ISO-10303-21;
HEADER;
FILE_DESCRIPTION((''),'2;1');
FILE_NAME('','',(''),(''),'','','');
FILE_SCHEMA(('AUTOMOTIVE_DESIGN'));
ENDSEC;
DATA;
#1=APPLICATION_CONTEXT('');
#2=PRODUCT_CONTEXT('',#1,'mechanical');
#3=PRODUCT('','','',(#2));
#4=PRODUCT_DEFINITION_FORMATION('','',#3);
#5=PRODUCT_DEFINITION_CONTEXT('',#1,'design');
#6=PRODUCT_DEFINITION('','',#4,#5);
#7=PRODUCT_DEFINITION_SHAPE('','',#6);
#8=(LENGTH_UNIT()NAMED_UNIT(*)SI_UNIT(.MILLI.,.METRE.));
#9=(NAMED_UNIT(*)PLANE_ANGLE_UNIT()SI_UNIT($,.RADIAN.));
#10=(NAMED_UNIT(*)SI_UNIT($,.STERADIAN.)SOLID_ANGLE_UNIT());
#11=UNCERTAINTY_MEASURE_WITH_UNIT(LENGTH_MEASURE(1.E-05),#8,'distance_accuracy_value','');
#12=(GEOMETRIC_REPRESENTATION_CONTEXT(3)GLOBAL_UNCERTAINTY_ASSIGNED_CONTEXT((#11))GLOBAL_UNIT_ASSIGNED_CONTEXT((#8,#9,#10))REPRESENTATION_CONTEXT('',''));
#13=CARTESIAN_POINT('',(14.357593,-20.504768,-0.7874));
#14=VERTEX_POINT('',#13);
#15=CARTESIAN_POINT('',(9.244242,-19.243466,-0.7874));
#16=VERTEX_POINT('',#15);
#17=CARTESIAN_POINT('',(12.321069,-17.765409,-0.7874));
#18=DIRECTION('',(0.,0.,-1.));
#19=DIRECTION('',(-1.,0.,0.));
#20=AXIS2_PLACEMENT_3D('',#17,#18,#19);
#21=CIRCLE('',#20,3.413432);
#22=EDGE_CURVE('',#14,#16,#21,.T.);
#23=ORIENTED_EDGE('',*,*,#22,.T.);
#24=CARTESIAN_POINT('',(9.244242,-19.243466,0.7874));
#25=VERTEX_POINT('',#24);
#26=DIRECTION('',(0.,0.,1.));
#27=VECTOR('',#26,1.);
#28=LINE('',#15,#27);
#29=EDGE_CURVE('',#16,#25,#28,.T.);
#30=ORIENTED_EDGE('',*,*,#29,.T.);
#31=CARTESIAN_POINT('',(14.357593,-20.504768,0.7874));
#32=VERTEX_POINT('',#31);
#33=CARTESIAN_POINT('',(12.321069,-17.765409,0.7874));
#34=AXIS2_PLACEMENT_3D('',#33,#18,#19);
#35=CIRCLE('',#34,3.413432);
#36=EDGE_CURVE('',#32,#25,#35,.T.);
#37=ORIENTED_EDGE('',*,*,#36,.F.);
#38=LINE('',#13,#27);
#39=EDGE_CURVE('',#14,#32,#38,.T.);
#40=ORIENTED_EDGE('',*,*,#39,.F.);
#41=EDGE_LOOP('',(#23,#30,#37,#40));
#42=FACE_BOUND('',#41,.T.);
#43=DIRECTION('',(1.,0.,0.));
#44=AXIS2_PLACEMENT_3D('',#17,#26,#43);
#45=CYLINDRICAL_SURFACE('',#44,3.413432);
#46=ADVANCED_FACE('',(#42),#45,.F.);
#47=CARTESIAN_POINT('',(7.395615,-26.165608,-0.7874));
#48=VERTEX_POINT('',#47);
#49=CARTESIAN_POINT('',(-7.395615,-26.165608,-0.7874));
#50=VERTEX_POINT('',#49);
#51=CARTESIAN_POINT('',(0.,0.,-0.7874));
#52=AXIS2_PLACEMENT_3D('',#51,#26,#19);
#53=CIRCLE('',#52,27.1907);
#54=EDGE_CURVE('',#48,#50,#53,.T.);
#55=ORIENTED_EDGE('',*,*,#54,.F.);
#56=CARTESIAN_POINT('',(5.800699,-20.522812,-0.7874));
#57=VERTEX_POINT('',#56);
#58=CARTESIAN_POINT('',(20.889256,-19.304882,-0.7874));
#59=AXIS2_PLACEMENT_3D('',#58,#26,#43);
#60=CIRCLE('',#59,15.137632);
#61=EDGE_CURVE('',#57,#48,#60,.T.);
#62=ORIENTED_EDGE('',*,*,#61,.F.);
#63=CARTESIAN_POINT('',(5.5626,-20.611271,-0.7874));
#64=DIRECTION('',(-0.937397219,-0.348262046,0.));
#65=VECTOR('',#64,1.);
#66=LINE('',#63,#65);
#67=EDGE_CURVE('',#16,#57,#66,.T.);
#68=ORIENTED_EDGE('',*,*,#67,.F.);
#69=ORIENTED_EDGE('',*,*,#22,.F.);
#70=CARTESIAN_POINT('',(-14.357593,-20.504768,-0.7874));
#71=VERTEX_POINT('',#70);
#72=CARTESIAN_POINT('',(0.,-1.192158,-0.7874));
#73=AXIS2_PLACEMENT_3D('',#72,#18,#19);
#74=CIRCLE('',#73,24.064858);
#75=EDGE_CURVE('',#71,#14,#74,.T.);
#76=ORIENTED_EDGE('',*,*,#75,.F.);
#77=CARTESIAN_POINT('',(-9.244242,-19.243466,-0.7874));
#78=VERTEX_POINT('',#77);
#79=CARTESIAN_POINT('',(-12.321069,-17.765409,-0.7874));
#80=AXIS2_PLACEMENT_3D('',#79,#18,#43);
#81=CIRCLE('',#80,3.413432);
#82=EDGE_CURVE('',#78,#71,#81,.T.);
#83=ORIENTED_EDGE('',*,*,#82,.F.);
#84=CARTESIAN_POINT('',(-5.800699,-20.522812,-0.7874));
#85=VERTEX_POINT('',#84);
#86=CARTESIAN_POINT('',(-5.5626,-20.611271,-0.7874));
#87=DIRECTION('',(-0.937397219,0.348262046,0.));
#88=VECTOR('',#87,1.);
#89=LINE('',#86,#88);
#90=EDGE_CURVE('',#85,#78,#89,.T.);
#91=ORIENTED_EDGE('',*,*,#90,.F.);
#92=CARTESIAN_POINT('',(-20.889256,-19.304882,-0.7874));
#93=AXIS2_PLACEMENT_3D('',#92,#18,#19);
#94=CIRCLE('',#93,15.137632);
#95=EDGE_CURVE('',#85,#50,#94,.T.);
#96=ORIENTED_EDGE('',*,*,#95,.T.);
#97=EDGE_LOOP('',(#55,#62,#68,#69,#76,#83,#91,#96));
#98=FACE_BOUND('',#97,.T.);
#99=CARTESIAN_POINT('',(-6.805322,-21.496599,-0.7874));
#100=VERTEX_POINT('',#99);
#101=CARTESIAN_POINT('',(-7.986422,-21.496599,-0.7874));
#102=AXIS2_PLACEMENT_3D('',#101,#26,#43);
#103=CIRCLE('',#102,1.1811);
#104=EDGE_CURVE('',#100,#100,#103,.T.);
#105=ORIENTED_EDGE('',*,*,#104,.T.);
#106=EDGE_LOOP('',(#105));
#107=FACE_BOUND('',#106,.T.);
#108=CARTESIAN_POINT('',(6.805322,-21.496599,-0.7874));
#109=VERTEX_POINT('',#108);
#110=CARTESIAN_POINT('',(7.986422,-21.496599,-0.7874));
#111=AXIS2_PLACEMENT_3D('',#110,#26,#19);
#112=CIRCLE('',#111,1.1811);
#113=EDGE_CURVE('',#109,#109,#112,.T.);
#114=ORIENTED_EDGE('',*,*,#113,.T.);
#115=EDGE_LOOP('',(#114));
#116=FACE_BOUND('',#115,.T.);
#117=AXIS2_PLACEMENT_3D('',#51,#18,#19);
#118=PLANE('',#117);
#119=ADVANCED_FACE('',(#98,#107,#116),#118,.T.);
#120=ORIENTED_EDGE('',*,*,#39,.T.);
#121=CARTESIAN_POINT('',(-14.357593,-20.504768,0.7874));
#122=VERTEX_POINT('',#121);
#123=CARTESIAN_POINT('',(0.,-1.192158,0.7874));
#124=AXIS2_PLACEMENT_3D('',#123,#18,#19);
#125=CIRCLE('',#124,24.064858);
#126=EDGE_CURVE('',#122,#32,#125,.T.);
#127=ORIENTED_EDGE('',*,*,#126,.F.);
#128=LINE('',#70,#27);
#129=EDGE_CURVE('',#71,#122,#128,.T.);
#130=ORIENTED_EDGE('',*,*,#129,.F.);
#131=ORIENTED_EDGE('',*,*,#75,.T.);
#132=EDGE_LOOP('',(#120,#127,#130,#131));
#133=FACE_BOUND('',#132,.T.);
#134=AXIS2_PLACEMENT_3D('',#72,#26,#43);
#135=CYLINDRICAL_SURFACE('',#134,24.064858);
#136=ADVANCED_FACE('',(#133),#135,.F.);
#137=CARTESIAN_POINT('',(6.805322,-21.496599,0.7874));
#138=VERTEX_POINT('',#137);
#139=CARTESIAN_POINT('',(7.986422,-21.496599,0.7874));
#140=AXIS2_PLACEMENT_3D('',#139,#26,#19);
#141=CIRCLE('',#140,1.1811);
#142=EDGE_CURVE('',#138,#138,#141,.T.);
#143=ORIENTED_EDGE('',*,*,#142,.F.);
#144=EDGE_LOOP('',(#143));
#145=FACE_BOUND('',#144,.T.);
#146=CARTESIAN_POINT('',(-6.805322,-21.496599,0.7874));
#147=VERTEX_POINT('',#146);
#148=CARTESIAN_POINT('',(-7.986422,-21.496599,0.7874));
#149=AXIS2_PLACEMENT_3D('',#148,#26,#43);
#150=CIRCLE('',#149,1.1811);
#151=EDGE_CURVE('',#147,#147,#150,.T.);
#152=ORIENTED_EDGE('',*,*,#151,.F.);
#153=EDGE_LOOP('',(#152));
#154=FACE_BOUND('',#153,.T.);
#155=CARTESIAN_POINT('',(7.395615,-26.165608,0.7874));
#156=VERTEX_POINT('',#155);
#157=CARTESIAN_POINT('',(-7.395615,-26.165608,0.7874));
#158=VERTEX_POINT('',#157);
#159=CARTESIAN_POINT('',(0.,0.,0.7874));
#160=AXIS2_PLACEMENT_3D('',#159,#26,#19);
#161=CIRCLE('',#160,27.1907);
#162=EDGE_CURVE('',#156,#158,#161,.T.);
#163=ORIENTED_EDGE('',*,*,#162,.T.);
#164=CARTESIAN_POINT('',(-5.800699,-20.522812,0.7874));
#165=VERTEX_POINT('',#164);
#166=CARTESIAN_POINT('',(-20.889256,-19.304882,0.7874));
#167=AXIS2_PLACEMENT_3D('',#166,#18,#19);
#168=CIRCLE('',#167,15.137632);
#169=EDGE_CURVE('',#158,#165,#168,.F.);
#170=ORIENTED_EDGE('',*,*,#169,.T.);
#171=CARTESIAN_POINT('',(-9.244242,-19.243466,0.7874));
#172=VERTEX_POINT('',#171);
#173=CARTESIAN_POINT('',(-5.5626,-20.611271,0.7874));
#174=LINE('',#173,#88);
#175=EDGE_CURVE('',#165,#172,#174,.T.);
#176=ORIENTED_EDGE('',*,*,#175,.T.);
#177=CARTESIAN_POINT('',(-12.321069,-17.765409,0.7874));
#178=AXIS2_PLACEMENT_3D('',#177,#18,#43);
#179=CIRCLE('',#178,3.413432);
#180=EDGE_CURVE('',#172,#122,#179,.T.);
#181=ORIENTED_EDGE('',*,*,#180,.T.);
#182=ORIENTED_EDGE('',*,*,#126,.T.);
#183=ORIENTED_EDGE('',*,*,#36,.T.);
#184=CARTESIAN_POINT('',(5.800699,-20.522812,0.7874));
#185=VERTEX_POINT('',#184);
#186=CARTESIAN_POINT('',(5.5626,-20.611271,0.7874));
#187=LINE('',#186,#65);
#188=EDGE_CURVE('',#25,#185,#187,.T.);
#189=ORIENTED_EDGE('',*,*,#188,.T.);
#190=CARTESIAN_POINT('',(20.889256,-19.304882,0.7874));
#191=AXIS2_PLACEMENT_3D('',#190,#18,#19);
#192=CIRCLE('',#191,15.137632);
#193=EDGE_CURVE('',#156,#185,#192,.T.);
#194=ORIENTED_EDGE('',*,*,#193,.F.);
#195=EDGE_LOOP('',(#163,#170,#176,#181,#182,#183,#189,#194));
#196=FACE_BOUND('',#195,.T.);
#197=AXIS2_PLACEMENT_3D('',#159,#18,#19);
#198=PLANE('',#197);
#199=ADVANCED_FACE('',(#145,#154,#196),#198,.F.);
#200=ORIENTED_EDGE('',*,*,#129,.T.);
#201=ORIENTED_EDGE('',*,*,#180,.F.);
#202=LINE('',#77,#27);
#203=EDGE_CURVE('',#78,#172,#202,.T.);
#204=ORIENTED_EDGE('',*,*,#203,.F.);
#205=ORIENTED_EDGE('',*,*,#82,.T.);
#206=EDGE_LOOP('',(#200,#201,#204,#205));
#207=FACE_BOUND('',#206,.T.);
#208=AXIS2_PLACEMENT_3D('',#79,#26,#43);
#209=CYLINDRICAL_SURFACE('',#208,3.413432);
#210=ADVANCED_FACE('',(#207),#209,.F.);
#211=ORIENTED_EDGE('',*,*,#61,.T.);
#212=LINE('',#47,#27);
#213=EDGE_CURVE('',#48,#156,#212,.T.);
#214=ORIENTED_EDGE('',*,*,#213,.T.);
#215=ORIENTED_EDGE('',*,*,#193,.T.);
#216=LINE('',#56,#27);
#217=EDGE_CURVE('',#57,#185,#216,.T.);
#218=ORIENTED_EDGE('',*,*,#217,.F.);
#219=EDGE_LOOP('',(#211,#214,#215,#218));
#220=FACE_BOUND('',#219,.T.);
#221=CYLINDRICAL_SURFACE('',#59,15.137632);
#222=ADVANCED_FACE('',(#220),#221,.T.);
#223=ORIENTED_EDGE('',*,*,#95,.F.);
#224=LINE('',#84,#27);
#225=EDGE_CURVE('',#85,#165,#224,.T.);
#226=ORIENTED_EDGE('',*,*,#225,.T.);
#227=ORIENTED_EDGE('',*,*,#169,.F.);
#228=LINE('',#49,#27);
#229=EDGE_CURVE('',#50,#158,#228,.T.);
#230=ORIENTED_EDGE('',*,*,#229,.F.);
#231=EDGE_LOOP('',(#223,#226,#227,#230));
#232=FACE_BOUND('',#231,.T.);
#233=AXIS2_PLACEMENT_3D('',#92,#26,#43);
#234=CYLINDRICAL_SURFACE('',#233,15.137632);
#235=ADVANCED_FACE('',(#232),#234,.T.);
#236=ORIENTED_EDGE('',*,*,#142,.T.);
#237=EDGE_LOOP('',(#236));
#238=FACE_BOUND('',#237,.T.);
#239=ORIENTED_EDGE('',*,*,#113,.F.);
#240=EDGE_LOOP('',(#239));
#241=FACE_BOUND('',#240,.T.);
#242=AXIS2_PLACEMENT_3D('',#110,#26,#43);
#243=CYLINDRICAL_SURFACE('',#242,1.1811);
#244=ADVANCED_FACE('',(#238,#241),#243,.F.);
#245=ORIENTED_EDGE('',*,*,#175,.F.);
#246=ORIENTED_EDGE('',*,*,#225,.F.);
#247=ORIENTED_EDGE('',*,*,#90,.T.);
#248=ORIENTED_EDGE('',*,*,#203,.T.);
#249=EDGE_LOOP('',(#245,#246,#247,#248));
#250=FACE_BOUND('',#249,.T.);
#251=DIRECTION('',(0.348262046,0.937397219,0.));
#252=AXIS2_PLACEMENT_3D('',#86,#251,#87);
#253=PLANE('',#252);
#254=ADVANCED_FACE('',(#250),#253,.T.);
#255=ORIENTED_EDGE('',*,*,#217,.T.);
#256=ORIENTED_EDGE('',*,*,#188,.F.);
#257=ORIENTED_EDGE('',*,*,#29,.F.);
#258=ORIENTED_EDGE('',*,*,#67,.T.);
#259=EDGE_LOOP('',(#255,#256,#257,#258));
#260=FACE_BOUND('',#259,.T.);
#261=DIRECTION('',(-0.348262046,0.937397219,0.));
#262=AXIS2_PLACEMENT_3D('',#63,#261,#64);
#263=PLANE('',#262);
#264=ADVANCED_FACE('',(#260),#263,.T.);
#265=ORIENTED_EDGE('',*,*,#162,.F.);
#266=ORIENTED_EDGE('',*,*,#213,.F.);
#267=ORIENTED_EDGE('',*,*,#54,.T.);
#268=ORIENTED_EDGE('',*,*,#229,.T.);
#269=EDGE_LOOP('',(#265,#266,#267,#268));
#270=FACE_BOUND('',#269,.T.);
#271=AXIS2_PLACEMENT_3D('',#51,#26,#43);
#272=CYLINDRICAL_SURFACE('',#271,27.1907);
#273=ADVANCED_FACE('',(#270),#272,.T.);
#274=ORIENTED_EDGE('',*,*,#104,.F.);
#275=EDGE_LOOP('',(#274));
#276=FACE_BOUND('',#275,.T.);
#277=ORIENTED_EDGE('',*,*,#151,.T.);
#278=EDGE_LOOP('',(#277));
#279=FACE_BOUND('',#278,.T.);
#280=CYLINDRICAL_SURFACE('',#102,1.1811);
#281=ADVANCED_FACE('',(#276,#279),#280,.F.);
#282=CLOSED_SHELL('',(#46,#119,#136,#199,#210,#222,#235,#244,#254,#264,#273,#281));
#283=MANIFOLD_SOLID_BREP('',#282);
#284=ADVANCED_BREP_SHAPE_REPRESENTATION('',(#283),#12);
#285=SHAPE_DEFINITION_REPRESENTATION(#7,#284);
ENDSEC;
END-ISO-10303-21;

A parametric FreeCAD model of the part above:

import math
import FreeCAD as App
import Part
import Sketcher
from FreeCAD import Vector
Q = App.Units.Quantity

doc = App.newDocument("Part")
body = doc.addObject("PartDesign::Body", "Body")

sketch1 = body.newObject("Sketcher::SketchObject", "Sketch")
sketch1.AttachmentSupport = (doc.getObject("XY_Plane"), [""])
sketch1.MapMode = "FlatFace"
sketch1.addGeometry([
    Part.LineSegment(Vector(-7.1, -26.3, 0), Vector(-5.6, -20.6, 0)),
    Part.LineSegment(Vector(-5.6, -20.6, 0), Vector(-9.2, -19.2, 0)),
    Part.ArcOfCircle(Part.Circle(Vector(-12.3, -17.8, 0), Vector(0, 0, 1), 3.4), math.radians(-127), math.radians(-26)),
    Part.ArcOfCircle(Part.Circle(Vector(0, -1.2, 0), Vector(0, 0, 1), 24.1), math.radians(-53), math.radians(233)),
    Part.ArcOfCircle(Part.Circle(Vector(12.3, -17.8, 0), Vector(0, 0, 1), 3.4), math.radians(-154), math.radians(-53)),
    Part.LineSegment(Vector(9.2, -19.2, 0), Vector(5.6, -20.6, 0)),
    Part.LineSegment(Vector(5.6, -20.6, 0), Vector(7.1, -26.3, 0)),
    Part.ArcOfCircle(Part.Circle(Vector(0, 0, 0), Vector(0, 0, 1), 27.2), math.radians(-75), math.radians(255)),
    Part.Circle(Vector(-8, -21.5, 0), Vector(0, 0, 1), 1.2),
    Part.Circle(Vector(8, -21.5, 0), Vector(0, 0, 1), 1.2),
], False)
sketch1.addConstraint([
    Sketcher.Constraint("Coincident", 0, 2, 1, 1),
    Sketcher.Constraint("Coincident", 1, 2, 2, 2),
    Sketcher.Constraint("Tangent", 2, 1, 3, 2),
    Sketcher.Constraint("Tangent", 3, 1, 4, 2),
    Sketcher.Constraint("Coincident", 4, 1, 5, 1),
    Sketcher.Constraint("Coincident", 5, 2, 6, 1),
    Sketcher.Constraint("Coincident", 6, 2, 7, 1),
    Sketcher.Constraint("Coincident", 7, 2, 0, 1),
    Sketcher.Constraint("Coincident", 7, 3, -1, 1),
    Sketcher.Constraint("Equal", 2, 4),
    Sketcher.Constraint("Equal", 8, 9),
    Sketcher.Constraint("Symmetric", 2, 3, 4, 3, -2),
    Sketcher.Constraint("Symmetric", 8, 3, 9, 3, -2),
    Sketcher.Constraint("Symmetric", 0, 2, 5, 2, -2),
    Sketcher.Constraint("Horizontal", 1, 2, 4, 1),
    Sketcher.Constraint("Horizontal", 6, 2, 7, 2),
    Sketcher.Constraint("Diameter", 8, Q("0.093 in")),
    Sketcher.Constraint("Radius", 7, Q("1.0705 in")),
    Sketcher.Constraint("Distance", 0, Q("0.23 in")),
    Sketcher.Constraint("DistanceX", 0, 2, -1, 1, Q("0.219 in")),
    Sketcher.Constraint("Radius", 3, Q("24.064858 mm")),
    Sketcher.Constraint("Radius", 2, Q("3.413432 mm")),
    Sketcher.Constraint("DistanceY", 6, 2, 9, 3, Q("0.1871998 in")),
    Sketcher.Constraint("DistanceY", 8, 3, -1, 1, Q("21.496599 mm")),
    Sketcher.Constraint("DistanceX", 2, 3, -1, 1, Q("12.321069 mm")),
    Sketcher.Constraint("DistanceY", 2, 3, -1, 1, Q("17.765409 mm")),
    Sketcher.Constraint("DistanceX", 8, 3, -1, 1, Q("7.986422 mm")),
    Sketcher.Constraint("DistanceX", 1, 2, -1, 1, Q("9.244242 mm")),
])
pad1 = body.newObject("PartDesign::Pad", "Pad")
pad1.Profile = sketch1
pad1.Type = "TwoLengths"
pad1.Length = Q("0.031 in")
pad1.Length2 = Q("0.031 in")

sketch2 = body.newObject("Sketcher::SketchObject", "Sketch001")
sketch2.AttachmentSupport = (doc.getObject("XY_Plane"), [""])
sketch2.MapMode = "FlatFace"
sketch2.addGeometry([
    Part.LineSegment(Vector(-7, -26, 0), Vector(-7, -34, 0)),
    Part.LineSegment(Vector(-7, -34, 0), Vector(0, -34, 0)),
    Part.LineSegment(Vector(0, -34, 0), Vector(0, -21, 0)),
    Part.LineSegment(Vector(0, -21, 0), Vector(-6, -21, 0)),
    Part.ArcOfCircle(Part.Circle(Vector(-21, -19, 0), Vector(0, 0, 1), 15), math.radians(-27), math.radians(-5)),
], False)
sketch2.addConstraint([
    Sketcher.Constraint("Coincident", 0, 2, 1, 1),
    Sketcher.Constraint("Coincident", 1, 2, 2, 1),
    Sketcher.Constraint("Coincident", 2, 2, 3, 1),
    Sketcher.Constraint("Coincident", 3, 2, 4, 2),
    Sketcher.Constraint("Coincident", 4, 1, 0, 1),
    Sketcher.Constraint("Vertical", 0),
    Sketcher.Constraint("Horizontal", 1),
    Sketcher.Constraint("Vertical", 2),
    Sketcher.Constraint("Horizontal", 3),
    Sketcher.Constraint("PointOnObject", 1, 2, -2),
    Sketcher.Constraint("Equal", 1, 0),
    Sketcher.Constraint("DistanceX", 3, 2, 3, 1, Q("5.800699 mm")),
    Sketcher.Constraint("Radius", 4, Q("15.137632 mm")),
    Sketcher.Constraint("DistanceY", 2, 1, 2, 2, Q("13.038411 mm")),
    Sketcher.Constraint("DistanceX", 1, 1, 1, 2, Q("7.395615 mm")),
    Sketcher.Constraint("DistanceY", 2, 2, -1, 1, Q("20.522812 mm")),
])
pocket1 = body.newObject("PartDesign::Pocket", "Pocket")
pocket1.Profile = sketch2
pocket1.Length = 3.5748
pocket1.Midplane = True
doc.recompute()

mirrored = body.newObject("PartDesign::Mirrored", "Mirrored")
mirrored.Originals = [pocket1]
mirrored.MirrorPlane = (doc.getObject("YZ_Plane"), [""])
body.Tip = mirrored

doc.recompute()
